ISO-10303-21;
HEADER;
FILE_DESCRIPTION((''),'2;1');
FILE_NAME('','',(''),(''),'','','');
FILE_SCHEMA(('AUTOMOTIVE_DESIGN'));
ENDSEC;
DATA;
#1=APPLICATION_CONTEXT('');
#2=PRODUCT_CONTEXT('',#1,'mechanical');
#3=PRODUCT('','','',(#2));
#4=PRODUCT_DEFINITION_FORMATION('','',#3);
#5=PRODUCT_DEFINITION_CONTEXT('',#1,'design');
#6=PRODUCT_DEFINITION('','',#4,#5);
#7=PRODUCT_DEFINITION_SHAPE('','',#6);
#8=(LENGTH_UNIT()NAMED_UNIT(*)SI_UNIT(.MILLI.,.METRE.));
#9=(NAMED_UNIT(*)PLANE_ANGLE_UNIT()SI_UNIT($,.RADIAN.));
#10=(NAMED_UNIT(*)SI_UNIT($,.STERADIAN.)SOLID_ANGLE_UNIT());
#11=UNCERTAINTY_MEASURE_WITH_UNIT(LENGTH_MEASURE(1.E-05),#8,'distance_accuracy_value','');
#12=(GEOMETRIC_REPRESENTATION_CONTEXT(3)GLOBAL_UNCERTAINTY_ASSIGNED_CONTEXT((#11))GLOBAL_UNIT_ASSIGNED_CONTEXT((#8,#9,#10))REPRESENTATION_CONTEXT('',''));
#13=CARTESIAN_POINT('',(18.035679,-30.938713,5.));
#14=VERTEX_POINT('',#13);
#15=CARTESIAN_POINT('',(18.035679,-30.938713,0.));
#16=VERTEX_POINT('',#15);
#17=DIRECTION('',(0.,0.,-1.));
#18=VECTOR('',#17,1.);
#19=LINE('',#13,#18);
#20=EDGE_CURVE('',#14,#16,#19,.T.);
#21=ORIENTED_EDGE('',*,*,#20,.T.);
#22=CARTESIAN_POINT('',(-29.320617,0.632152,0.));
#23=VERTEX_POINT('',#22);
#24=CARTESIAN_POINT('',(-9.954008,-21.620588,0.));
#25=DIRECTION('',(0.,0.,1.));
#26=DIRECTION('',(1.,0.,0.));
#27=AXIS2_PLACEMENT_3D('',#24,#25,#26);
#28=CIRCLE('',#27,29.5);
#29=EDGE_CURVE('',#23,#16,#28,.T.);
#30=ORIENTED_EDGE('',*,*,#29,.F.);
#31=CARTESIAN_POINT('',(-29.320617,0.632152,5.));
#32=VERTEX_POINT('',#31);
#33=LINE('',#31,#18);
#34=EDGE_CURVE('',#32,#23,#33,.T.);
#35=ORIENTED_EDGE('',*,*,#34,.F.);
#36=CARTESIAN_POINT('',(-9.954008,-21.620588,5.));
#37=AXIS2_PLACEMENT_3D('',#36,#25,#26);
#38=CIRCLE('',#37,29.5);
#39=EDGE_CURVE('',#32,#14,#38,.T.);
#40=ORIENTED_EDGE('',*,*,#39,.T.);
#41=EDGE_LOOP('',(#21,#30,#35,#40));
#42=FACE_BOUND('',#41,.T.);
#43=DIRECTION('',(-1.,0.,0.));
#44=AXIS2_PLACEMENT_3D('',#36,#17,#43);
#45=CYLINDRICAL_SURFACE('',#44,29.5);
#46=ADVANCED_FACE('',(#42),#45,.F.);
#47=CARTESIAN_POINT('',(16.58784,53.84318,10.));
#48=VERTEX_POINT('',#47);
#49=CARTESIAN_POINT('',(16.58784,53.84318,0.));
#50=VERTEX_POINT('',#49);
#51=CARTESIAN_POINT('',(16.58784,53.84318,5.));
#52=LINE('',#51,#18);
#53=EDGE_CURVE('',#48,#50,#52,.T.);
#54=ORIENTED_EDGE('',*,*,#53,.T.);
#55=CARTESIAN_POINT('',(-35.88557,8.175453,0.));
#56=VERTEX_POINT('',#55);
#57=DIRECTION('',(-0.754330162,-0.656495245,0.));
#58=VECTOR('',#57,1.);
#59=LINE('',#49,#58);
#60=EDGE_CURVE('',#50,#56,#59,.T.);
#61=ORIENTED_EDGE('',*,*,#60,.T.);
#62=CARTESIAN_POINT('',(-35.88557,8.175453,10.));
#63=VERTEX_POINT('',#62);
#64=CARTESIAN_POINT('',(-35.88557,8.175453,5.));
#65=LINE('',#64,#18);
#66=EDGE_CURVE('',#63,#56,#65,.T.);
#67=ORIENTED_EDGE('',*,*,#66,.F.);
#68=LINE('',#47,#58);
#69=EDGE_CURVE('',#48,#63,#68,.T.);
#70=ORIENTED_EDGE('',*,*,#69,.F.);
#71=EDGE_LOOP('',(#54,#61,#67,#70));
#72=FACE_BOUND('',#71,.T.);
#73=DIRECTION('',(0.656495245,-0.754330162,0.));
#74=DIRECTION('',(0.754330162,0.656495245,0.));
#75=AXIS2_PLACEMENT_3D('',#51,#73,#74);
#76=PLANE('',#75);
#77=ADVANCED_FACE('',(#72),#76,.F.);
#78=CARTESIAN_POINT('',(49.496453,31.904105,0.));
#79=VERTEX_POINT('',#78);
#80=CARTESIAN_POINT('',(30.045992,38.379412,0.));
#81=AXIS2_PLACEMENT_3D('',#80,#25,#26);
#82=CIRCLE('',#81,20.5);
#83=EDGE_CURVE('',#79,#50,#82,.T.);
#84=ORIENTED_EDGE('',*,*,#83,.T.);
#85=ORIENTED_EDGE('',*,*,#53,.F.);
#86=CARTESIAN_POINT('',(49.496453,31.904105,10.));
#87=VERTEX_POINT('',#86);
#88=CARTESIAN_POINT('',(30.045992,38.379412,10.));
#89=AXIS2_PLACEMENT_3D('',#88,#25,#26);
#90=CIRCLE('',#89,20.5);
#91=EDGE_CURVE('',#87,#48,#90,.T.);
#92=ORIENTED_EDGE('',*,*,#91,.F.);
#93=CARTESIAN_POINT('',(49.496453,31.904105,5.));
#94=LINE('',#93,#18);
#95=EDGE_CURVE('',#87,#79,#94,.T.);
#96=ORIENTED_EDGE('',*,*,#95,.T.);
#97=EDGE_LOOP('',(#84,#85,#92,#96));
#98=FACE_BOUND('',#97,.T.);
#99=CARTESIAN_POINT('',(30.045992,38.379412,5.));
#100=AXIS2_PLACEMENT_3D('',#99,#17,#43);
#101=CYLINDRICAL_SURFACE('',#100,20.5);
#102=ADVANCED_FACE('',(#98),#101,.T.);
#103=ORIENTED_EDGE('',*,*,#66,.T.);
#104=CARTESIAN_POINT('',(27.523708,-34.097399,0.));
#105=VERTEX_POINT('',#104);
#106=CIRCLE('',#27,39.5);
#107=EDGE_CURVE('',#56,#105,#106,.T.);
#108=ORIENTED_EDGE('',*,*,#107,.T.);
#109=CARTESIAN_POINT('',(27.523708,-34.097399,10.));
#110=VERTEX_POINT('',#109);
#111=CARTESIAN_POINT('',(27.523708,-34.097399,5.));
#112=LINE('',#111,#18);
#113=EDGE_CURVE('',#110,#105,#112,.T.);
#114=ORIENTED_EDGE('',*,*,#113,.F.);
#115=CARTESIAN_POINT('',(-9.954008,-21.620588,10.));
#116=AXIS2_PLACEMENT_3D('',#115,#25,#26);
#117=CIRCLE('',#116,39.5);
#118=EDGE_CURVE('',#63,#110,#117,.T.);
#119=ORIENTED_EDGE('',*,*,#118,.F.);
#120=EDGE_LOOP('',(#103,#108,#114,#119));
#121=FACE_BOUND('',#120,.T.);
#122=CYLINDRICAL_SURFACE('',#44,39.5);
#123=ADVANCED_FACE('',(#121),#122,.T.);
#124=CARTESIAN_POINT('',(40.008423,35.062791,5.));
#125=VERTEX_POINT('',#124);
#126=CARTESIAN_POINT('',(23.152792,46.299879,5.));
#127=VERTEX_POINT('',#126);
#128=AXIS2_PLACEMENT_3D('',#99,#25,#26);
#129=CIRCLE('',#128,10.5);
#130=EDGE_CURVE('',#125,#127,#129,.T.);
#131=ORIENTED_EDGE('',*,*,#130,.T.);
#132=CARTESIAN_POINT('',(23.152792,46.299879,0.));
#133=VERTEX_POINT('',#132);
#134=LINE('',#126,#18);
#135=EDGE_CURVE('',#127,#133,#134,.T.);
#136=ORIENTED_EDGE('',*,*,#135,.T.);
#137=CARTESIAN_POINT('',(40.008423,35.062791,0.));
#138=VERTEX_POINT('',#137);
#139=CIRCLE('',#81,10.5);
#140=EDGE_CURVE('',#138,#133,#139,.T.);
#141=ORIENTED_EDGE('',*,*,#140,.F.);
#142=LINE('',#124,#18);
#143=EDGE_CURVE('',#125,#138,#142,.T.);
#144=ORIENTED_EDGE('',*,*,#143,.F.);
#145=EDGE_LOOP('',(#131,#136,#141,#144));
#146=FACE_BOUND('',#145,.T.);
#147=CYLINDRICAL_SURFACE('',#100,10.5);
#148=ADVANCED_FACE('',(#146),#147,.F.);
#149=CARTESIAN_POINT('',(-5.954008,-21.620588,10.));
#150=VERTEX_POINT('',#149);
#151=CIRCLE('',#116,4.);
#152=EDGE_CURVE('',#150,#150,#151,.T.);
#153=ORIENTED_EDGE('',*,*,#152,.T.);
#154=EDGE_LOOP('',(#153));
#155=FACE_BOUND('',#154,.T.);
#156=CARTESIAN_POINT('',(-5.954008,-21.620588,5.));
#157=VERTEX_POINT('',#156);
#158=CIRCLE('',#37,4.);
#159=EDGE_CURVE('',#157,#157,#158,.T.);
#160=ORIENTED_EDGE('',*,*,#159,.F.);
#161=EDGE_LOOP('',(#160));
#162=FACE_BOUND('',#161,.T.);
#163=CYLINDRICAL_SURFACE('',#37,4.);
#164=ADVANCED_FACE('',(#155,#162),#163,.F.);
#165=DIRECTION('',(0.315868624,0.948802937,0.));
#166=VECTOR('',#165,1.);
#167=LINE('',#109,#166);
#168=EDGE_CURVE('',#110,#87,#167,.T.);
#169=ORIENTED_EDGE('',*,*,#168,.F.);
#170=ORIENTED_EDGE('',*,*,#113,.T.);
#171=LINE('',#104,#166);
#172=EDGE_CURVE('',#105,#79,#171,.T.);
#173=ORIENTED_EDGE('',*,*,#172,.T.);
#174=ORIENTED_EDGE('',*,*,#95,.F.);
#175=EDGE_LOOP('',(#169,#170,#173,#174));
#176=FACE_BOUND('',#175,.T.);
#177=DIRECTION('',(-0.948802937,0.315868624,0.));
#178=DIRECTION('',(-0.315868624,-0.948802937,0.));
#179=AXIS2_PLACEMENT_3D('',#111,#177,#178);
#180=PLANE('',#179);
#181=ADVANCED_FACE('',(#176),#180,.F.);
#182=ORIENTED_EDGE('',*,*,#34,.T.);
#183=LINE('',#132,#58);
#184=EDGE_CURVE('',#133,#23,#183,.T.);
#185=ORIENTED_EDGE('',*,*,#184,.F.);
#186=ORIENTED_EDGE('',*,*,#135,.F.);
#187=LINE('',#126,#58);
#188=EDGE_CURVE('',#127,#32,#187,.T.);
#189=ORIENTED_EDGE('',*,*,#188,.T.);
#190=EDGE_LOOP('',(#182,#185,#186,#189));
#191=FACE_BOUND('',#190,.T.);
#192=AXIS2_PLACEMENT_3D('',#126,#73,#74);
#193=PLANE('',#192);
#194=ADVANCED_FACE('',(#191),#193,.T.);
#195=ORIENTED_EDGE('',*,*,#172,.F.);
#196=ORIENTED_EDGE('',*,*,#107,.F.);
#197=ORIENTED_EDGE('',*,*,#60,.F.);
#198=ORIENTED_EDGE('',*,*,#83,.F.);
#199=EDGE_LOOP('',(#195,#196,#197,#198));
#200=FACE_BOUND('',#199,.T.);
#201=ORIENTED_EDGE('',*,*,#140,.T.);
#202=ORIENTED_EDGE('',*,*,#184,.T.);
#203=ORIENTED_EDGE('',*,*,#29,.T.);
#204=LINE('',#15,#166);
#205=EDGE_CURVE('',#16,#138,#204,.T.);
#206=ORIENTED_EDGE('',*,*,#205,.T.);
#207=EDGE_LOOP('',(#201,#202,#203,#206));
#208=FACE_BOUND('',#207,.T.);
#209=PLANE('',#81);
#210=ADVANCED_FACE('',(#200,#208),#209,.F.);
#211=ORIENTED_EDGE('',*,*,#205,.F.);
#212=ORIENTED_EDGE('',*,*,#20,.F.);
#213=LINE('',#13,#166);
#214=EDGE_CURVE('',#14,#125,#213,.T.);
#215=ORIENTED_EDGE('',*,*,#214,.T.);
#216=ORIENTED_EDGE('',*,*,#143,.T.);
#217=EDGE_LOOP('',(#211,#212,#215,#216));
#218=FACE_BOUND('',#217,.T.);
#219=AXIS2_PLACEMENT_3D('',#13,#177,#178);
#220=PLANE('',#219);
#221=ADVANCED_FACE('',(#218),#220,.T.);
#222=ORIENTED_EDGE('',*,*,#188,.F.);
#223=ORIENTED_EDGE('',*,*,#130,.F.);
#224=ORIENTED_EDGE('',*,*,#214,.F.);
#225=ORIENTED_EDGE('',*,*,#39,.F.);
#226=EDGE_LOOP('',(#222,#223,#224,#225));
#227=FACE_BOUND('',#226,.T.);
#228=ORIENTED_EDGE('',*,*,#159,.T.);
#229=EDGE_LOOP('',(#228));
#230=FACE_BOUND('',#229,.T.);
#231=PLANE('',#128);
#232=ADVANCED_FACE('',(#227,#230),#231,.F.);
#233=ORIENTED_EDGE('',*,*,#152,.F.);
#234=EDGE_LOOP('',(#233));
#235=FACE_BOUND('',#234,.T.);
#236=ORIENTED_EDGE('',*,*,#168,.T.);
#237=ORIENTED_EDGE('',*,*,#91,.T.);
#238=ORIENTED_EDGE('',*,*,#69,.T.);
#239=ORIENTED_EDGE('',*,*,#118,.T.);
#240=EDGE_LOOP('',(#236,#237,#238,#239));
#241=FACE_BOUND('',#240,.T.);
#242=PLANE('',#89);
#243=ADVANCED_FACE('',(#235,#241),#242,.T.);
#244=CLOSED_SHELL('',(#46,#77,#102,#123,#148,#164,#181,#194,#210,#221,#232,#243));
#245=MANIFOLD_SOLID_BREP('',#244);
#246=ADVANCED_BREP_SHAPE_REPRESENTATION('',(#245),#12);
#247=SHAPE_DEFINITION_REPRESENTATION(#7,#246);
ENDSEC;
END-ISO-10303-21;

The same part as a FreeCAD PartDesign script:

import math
import FreeCAD as App
import Part
import Sketcher

doc = App.newDocument("Part")
body = doc.addObject("PartDesign::Body", "Body")

sketch1 = doc.addObject("Sketcher::SketchObject", "Sketch")
body.addObject(sketch1)
sketch1.AttachmentSupport = (doc.XY_Plane, [""])
sketch1.MapMode = "FlatFace"
sketch1.addGeometry(Part.LineSegment(App.Vector(16.58784, 53.84318, 0), App.Vector(-35.88557, 8.175453, 0)), False)
sketch1.addGeometry(Part.ArcOfCircle(Part.Circle(App.Vector(-9.954008, -21.620588, 0), App.Vector(0, 0, 1), 39.5), math.radians(131.033125), math.radians(341.58674)), False)
sketch1.addGeometry(Part.LineSegment(App.Vector(27.523708, -34.097399, 0), App.Vector(49.496453, 31.904105, 0)), False)
sketch1.addGeometry(Part.ArcOfCircle(Part.Circle(App.Vector(30.045992, 38.379412, 0), App.Vector(0, 0, 1), 20.5), math.radians(-18.41326), math.radians(131.033125)), False)
sketch1.addGeometry(Part.LineSegment(App.Vector(-29.320617, 0.632152, 0), App.Vector(23.152792, 46.299879, 0)), False)
sketch1.addGeometry(Part.ArcOfCircle(Part.Circle(App.Vector(30.045992, 38.379412, 0), App.Vector(0, 0, 1), 10.5), math.radians(-18.41326), math.radians(131.033125)), False)
sketch1.addGeometry(Part.LineSegment(App.Vector(40.008423, 35.062791, 0), App.Vector(18.035679, -30.938713, 0)), False)
sketch1.addGeometry(Part.ArcOfCircle(Part.Circle(App.Vector(-9.954008, -21.620588, 0), App.Vector(0, 0, 1), 29.5), math.radians(131.033125), math.radians(341.58674)), False)
sketch1.addConstraint(Sketcher.Constraint("Tangent", 0, 2, 1, 1))
sketch1.addConstraint(Sketcher.Constraint("Tangent", 1, 2, 2, 1))
sketch1.addConstraint(Sketcher.Constraint("Tangent", 2, 2, 3, 1))
sketch1.addConstraint(Sketcher.Constraint("Tangent", 3, 2, 0, 1))
sketch1.addConstraint(Sketcher.Constraint("Tangent", 4, 2, 5, 2))
sketch1.addConstraint(Sketcher.Constraint("Tangent", 5, 1, 6, 1))
sketch1.addConstraint(Sketcher.Constraint("Tangent", 6, 2, 7, 2))
sketch1.addConstraint(Sketcher.Constraint("Tangent", 7, 1, 4, 1))
sketch1.addConstraint(Sketcher.Constraint("Coincident", 5, 3, 3, 3))
sketch1.addConstraint(Sketcher.Constraint("Coincident", 7, 3, 1, 3))
sketch1.addConstraint(Sketcher.Constraint("Parallel", 0, 4))
sketch1.addConstraint(Sketcher.Constraint("Radius", 1, 39.5))
sketch1.addConstraint(Sketcher.Constraint("Radius", 3, 20.5))
sketch1.addConstraint(Sketcher.Constraint("Radius", 5, 10.5))
sketch1.addConstraint(Sketcher.Constraint("DistanceX", 1, 3, 3, 3, 40.0))
sketch1.addConstraint(Sketcher.Constraint("DistanceY", 1, 3, 3, 3, 60.0))
sketch1.addConstraint(Sketcher.Constraint("DistanceY", 1, 2, -1, 1, 34.097399))
sketch1.addConstraint(Sketcher.Constraint("DistanceX", 0, 2, -1, 1, 35.88557))
pad1 = doc.addObject("PartDesign::Pad", "Pad")
body.addObject(pad1)
pad1.Profile = sketch1
pad1.Length = 5

sketch2 = doc.addObject("Sketcher::SketchObject", "Sketch001")
body.addObject(sketch2)
sketch2.AttachmentSupport = (doc.XY_Plane, [""])
sketch2.MapMode = "FlatFace"
sketch2.AttachmentOffset = App.Placement(App.Vector(0, 0, 5), App.Rotation())
sketch2.addGeometry(Part.LineSegment(App.Vector(16.58784, 53.84318, 0), App.Vector(-35.88557, 8.175453, 0)), False)
sketch2.addGeometry(Part.ArcOfCircle(Part.Circle(App.Vector(-9.954008, -21.620588, 0), App.Vector(0, 0, 1), 39.5), math.radians(131.033125), math.radians(341.58674)), False)
sketch2.addGeometry(Part.LineSegment(App.Vector(27.523708, -34.097399, 0), App.Vector(49.496453, 31.904105, 0)), False)
sketch2.addGeometry(Part.ArcOfCircle(Part.Circle(App.Vector(30.045992, 38.379412, 0), App.Vector(0, 0, 1), 20.5), math.radians(-18.41326), math.radians(131.033125)), False)
sketch2.addConstraint(Sketcher.Constraint("Tangent", 0, 2, 1, 1))
sketch2.addConstraint(Sketcher.Constraint("Tangent", 1, 2, 2, 1))
sketch2.addConstraint(Sketcher.Constraint("Tangent", 2, 2, 3, 1))
sketch2.addConstraint(Sketcher.Constraint("Tangent", 3, 2, 0, 1))
sketch2.addConstraint(Sketcher.Constraint("Radius", 1, 39.5))
sketch2.addConstraint(Sketcher.Constraint("Radius", 3, 20.5))
sketch2.addConstraint(Sketcher.Constraint("DistanceX", 1, 3, 3, 3, 40.0))
sketch2.addConstraint(Sketcher.Constraint("DistanceY", 1, 3, 3, 3, 60.0))
sketch2.addConstraint(Sketcher.Constraint("DistanceY", 1, 2, -1, 1, 34.097399))
sketch2.addConstraint(Sketcher.Constraint("DistanceX", 0, 2, -1, 1, 35.88557))
pad2 = doc.addObject("PartDesign::Pad", "Pad001")
body.addObject(pad2)
pad2.Profile = sketch2
pad2.Length = 5

sketch3 = doc.addObject("Sketcher::SketchObject", "Sketch002")
body.addObject(sketch3)
sketch3.AttachmentSupport = (doc.XY_Plane, [""])
sketch3.MapMode = "FlatFace"
sketch3.AttachmentOffset = App.Placement(App.Vector(0, 0, 10), App.Rotation())
sketch3.addGeometry(Part.Circle(App.Vector(-9.954008, -21.620588, 0), App.Vector(0, 0, 1), 4), False)
sketch3.addConstraint(Sketcher.Constraint("Diameter", 0, 8.0))
sketch3.addConstraint(Sketcher.Constraint("DistanceY", 0, 3, -1, 1, 21.620588))
sketch3.addConstraint(Sketcher.Constraint("DistanceX", 0, 3, -1, 1, 9.954008))
pocket1 = doc.addObject("PartDesign::Pocket", "Pocket")
body.addObject(pocket1)
pocket1.Profile = sketch3
pocket1.Length = 5

doc.recompute()
